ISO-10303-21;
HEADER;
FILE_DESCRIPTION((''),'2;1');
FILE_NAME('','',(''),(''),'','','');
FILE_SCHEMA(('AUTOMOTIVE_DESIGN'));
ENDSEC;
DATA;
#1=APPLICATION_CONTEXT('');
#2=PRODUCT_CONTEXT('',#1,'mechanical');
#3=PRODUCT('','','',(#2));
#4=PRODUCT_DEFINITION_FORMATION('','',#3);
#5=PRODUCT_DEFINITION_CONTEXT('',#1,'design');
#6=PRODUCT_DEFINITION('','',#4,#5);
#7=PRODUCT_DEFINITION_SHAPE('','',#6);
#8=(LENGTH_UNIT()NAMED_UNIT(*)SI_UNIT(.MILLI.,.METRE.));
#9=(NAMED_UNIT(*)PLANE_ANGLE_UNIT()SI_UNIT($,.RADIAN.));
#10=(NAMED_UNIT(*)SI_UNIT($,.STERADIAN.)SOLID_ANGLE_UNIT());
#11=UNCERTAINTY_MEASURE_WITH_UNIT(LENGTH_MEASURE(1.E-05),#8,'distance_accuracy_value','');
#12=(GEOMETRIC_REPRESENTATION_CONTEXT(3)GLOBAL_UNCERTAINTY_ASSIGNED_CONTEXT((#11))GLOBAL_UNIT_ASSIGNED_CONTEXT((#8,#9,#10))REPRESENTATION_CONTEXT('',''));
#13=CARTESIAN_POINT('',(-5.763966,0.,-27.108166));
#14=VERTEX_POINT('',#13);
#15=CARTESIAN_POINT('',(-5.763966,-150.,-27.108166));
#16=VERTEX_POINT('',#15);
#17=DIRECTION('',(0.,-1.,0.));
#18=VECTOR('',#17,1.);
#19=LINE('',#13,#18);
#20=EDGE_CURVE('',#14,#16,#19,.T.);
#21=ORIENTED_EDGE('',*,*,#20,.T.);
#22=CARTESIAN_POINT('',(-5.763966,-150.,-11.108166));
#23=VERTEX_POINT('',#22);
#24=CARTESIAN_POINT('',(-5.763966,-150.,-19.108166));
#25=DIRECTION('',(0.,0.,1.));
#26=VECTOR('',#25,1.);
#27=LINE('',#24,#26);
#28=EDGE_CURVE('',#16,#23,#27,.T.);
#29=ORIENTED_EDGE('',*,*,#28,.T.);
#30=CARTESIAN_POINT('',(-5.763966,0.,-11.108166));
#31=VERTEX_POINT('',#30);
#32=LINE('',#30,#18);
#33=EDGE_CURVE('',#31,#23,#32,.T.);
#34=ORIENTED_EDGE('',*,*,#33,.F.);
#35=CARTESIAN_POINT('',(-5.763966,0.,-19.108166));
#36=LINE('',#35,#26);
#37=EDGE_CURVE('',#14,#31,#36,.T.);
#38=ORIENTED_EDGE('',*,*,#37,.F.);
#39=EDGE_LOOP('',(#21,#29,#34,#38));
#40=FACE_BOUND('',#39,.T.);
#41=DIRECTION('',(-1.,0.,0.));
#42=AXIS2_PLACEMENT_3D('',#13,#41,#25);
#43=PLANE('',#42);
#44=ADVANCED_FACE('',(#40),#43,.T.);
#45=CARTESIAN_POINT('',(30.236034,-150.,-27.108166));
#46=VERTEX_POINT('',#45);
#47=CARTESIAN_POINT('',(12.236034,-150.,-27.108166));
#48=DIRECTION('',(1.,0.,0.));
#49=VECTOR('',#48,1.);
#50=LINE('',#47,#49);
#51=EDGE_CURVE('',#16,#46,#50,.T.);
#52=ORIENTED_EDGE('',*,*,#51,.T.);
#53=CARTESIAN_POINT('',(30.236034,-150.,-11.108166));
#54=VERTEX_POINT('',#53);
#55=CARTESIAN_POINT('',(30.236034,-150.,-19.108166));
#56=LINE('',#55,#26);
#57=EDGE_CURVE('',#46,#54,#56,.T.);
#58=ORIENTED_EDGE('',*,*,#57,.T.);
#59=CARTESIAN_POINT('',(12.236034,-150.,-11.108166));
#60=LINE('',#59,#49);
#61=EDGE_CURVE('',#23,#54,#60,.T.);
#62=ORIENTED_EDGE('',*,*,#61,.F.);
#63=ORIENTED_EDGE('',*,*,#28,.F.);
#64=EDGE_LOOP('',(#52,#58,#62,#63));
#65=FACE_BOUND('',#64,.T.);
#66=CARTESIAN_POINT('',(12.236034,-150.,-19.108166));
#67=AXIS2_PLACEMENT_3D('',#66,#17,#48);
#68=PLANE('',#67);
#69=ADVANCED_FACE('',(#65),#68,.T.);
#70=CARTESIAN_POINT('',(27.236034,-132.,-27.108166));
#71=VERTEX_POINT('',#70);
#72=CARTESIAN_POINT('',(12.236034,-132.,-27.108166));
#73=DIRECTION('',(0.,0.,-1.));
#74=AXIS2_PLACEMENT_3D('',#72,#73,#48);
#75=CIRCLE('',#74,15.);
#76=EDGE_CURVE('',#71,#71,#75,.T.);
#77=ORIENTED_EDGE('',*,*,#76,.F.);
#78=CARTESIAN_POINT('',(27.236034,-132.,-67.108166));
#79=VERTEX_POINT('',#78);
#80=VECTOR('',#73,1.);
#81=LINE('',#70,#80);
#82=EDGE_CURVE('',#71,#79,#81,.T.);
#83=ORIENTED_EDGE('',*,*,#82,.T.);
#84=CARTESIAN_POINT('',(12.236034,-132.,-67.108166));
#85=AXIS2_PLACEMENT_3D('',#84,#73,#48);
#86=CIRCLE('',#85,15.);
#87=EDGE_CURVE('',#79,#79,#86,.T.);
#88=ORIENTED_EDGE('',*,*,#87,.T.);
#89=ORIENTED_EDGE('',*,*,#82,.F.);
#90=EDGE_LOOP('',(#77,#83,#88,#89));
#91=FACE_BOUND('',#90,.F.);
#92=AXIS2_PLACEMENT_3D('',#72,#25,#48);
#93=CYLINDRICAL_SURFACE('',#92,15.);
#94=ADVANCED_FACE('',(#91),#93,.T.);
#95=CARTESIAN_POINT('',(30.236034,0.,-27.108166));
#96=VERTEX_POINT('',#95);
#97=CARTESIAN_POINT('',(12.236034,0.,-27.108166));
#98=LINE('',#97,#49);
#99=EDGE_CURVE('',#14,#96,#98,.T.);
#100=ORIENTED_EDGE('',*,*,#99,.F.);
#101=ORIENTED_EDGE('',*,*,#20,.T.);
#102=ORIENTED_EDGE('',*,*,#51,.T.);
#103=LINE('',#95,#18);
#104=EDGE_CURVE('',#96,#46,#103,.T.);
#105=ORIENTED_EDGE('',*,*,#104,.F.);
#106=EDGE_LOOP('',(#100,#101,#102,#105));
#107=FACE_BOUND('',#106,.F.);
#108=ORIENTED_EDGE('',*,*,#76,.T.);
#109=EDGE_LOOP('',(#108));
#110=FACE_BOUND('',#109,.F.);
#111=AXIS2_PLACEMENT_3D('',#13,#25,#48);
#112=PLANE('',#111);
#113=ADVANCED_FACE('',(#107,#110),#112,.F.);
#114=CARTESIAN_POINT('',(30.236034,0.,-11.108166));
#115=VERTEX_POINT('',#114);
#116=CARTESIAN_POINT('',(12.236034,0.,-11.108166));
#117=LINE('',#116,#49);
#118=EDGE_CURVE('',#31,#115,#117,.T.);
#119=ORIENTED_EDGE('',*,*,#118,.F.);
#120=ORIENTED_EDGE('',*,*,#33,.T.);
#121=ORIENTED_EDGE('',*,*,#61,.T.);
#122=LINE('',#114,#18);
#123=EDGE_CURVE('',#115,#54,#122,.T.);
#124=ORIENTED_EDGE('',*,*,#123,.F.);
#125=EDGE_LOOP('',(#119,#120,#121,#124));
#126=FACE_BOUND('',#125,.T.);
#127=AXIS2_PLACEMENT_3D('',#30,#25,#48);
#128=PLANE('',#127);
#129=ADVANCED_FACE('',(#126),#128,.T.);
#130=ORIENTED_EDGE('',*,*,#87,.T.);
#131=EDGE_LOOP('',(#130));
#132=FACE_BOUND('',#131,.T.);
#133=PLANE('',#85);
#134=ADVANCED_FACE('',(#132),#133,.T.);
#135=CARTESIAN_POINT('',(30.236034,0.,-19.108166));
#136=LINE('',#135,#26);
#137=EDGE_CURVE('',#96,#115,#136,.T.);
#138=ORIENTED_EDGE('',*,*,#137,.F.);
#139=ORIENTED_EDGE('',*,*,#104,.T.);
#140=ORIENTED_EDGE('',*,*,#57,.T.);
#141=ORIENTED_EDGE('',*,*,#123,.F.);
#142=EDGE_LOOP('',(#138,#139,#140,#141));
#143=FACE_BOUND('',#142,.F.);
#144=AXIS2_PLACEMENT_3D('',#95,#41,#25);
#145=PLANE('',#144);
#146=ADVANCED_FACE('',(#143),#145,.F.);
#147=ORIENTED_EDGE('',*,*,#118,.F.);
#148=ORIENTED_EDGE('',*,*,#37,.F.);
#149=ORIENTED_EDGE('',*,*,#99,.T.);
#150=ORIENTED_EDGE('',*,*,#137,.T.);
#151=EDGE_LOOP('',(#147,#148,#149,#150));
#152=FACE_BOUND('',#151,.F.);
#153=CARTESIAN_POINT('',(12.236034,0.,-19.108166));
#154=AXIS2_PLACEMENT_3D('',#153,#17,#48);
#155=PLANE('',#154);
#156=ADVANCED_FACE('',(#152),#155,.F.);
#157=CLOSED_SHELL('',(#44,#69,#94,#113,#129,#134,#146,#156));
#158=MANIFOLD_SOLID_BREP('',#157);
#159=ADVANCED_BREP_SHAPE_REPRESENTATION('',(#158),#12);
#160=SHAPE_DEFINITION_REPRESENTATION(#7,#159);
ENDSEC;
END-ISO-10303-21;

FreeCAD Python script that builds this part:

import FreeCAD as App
import Part
import Sketcher

V = App.Vector


def add_polygon(sketch, points):
    """Adds a closed chain of lines whose ends are joined by coincident constraints."""
    first, n = sketch.GeometryCount, len(points)
    for a, b in zip(points, points[1:] + points[:1]):
        sketch.addGeometry(Part.LineSegment(App.Vector(*a, 0), App.Vector(*b, 0)), False)
    for i in range(n):
        sketch.addConstraint(Sketcher.Constraint("Coincident", first + i, 2, first + (i + 1) % n, 1))

doc = App.newDocument("Part")
body = doc.addObject("PartDesign::Body", "Body")

# Sketch on XZ plane
sketch1 = body.newObject("Sketcher::SketchObject", "Sketch")
sketch1.AttachmentSupport = (doc.getObject("XZ_Plane"), [""])
sketch1.MapMode = "FlatFace"
add_polygon(sketch1, [(-6, -11), (-6, -27), (30, -27), (30, -11)])  # lines 0-3
sketch1.addConstraint([
    Sketcher.Constraint("Vertical", 0),
    Sketcher.Constraint("Horizontal", 1),
    Sketcher.Constraint("Vertical", 2),
    Sketcher.Constraint("Horizontal", 3),
    Sketcher.Constraint("DistanceX", 1, 1, 1, 2, 36.0),
    Sketcher.Constraint("DistanceY", 0, 2, 0, 1, 16.0),
    Sketcher.Constraint("DistanceX", 0, 2, -1, 1, 5.763966),
    Sketcher.Constraint("DistanceY", 0, 2, -1, 1, 27.108166),
])
pad1 = body.newObject("PartDesign::Pad", "Pad")
pad1.Profile = sketch1
pad1.Length = 150

# Sketch on XY plane
sketch2 = body.newObject("Sketcher::SketchObject", "Sketch001")
sketch2.AttachmentSupport = (doc.getObject("XY_Plane"), [""])
sketch2.MapMode = "FlatFace"
sketch2.AttachmentOffset = App.Placement(V(0, 0, -27.108166), App.Rotation())
sketch2.addGeometry(Part.Circle(V(12, -132, 0), V(0, 0, 1), 15), False)
sketch2.addConstraint([
    Sketcher.Constraint("Diameter", 0, 30.0),
    Sketcher.Constraint("DistanceY", 0, 3, -1, 1, 132.0),
    Sketcher.Constraint("DistanceX", -1, 1, 0, 3, 12.236034),
])
pad2 = body.newObject("PartDesign::Pad", "Pad001")
pad2.Profile = sketch2
pad2.Length = 40
pad2.Reversed = True

doc.recompute()
